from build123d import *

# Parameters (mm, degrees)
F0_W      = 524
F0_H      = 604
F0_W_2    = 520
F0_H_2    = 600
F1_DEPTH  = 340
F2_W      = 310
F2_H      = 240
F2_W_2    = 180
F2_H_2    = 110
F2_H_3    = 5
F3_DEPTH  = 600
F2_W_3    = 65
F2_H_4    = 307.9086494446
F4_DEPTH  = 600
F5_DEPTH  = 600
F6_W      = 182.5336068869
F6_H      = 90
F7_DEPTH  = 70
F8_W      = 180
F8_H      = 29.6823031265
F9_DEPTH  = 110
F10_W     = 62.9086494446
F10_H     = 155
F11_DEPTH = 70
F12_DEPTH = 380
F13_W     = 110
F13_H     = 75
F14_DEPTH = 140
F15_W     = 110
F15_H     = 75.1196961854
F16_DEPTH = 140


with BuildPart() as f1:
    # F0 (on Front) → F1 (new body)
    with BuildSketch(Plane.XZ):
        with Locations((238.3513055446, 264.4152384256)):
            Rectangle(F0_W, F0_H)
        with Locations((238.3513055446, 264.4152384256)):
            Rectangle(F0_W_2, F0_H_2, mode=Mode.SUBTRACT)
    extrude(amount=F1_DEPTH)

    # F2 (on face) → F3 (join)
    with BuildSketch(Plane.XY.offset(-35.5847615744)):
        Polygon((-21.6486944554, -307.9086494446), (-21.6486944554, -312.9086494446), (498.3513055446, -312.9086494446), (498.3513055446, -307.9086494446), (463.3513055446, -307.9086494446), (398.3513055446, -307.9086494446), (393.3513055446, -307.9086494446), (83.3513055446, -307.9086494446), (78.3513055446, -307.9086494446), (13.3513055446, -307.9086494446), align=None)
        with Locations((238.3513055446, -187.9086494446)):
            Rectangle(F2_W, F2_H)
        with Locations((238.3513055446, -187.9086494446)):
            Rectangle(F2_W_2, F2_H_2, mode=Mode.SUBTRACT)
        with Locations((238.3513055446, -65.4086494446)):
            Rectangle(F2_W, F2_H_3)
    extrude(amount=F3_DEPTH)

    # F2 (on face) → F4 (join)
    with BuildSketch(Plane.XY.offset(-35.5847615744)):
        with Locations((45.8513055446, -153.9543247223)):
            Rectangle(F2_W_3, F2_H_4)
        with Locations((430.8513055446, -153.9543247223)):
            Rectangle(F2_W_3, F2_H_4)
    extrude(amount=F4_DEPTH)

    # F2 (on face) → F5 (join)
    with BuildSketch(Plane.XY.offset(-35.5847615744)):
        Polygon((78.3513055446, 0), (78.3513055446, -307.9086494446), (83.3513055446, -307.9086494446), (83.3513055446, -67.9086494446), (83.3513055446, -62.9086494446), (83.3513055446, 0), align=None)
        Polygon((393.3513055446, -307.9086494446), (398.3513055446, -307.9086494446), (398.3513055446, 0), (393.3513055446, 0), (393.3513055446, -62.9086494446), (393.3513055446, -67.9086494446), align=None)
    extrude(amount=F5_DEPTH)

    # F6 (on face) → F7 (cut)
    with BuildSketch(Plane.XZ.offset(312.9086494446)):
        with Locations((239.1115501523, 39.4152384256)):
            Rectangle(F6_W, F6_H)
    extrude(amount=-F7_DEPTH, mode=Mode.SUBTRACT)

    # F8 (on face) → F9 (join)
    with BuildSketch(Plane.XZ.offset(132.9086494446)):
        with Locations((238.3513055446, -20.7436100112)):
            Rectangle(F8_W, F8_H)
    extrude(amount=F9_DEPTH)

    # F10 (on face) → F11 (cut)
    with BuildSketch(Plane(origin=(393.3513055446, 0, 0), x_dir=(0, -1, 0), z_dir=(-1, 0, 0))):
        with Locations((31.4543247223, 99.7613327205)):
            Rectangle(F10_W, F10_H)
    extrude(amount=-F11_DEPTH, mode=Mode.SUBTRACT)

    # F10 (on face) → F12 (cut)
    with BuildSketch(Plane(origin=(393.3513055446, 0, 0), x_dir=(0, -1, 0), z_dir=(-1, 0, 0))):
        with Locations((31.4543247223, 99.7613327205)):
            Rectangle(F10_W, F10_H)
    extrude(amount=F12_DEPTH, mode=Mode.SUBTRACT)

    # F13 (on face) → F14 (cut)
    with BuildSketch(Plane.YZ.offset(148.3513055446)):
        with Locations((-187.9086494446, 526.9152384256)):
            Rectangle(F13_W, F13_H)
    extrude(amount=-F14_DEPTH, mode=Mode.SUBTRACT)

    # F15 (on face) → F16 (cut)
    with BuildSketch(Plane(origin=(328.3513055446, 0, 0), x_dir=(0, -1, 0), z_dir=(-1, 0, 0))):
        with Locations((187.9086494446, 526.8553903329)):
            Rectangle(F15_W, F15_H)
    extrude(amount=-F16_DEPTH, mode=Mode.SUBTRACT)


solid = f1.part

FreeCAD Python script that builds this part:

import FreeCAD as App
import Part
import Sketcher


def add_polygon(sketch, points):
    """Adds a closed chain of lines whose ends are joined by coincident constraints."""
    first, n = sketch.GeometryCount, len(points)
    for a, b in zip(points, points[1:] + points[:1]):
        sketch.addGeometry(Part.LineSegment(App.Vector(*a, 0), App.Vector(*b, 0)), False)
    for i in range(n):
        sketch.addConstraint(Sketcher.Constraint("Coincident", first + i, 2, first + (i + 1) % n, 1))

doc = App.newDocument("Part")
body = doc.addObject("PartDesign::Body", "Body")

# Sketch on XZ plane
sketch1 = body.newObject("Sketcher::SketchObject", "Sketch")
sketch1.AttachmentSupport = (doc.getObject("XZ_Plane"), [""])
sketch1.MapMode = "FlatFace"
add_polygon(sketch1, [(-24, 566), (-24, -38), (500, -38), (500, 566)])  # lines 0-3
add_polygon(sketch1, [(498, -36), (-22, -36), (-22, 564), (498, 564)])  # lines 4-7
sketch1.addConstraint([
    Sketcher.Constraint("Vertical", 0),
    Sketcher.Constraint("Horizontal", 1),
    Sketcher.Constraint("Vertical", 2),
    Sketcher.Constraint("Horizontal", 3),
    Sketcher.Constraint("Horizontal", 4),
    Sketcher.Constraint("Vertical", 5),
    Sketcher.Constraint("Horizontal", 6),
    Sketcher.Constraint("Vertical", 7),
    Sketcher.Constraint("DistanceX", 1, 1, 1, 2, 524.0),
    Sketcher.Constraint("DistanceX", 4, 2, 4, 1, 520.0),
    Sketcher.Constraint("DistanceY", 0, 2, 0, 1, 604.0),
    Sketcher.Constraint("DistanceY", 5, 1, 5, 2, 600.0),
    Sketcher.Constraint("DistanceX", 0, 2, 4, 2, 2.0),
    Sketcher.Constraint("DistanceY", 0, 2, 4, 2, 2.0),
    Sketcher.Constraint("DistanceY", 0, 2, -1, 1, 37.584762),
    Sketcher.Constraint("DistanceX", 0, 2, -1, 1, 23.648694),
])
pad1 = body.newObject("PartDesign::Pad", "Pad")
pad1.Profile = sketch1
pad1.Length = 340

# Sketch on XY plane
sketch2 = body.newObject("Sketcher::SketchObject", "Sketch001")
sketch2.AttachmentSupport = (doc.getObject("XY_Plane"), [""])
sketch2.MapMode = "FlatFace"
sketch2.AttachmentOffset = App.Placement(App.Vector(0, 0, -35.584762), App.Rotation())
add_polygon(sketch2, [(-22, -308), (-22, -313), (498, -313), (498, -308), (393, -308), (393, -63), (83, -63), (83, -308)])  # lines 0-7
add_polygon(sketch2, [(328, -243), (148, -243), (148, -133), (328, -133)])  # lines 8-11
sketch2.addConstraint([
    Sketcher.Constraint("Vertical", 0),
    Sketcher.Constraint("Horizontal", 1),
    Sketcher.Constraint("Vertical", 2),
    Sketcher.Constraint("Horizontal", 3),
    Sketcher.Constraint("Vertical", 4),
    Sketcher.Constraint("Horizontal", 5),
    Sketcher.Constraint("Vertical", 6),
    Sketcher.Constraint("Horizontal", 7),
    Sketcher.Constraint("Horizontal", 8),
    Sketcher.Constraint("Vertical", 9),
    Sketcher.Constraint("Horizontal", 10),
    Sketcher.Constraint("Vertical", 11),
    Sketcher.Constraint("Horizontal", 3, 2, 6, 2),
    Sketcher.Constraint("Equal", 3, 7),
    Sketcher.Constraint("DistanceX", 1, 1, 1, 2, 520.0),
    Sketcher.Constraint("DistanceX", 3, 2, 3, 1, 105.0),
    Sketcher.Constraint("DistanceX", 8, 2, 8, 1, 180.0),
    Sketcher.Constraint("DistanceY", 0, 2, 0, 1, 5.0),
    Sketcher.Constraint("DistanceY", 4, 1, 4, 2, 245.0),
    Sketcher.Constraint("DistanceY", 9, 1, 9, 2, 110.0),
    Sketcher.Constraint("DistanceX", 6, 2, 8, 2, 65.0),
    Sketcher.Constraint("DistanceY", 6, 2, 8, 2, 65.0),
    Sketcher.Constraint("DistanceY", 0, 2, -1, 1, 312.908649),
    Sketcher.Constraint("DistanceX", 0, 2, -1, 1, 21.648694),
])
pad2 = body.newObject("PartDesign::Pad", "Pad001")
pad2.Profile = sketch2
pad2.Length = 600

# Sketch on XY plane
sketch3 = body.newObject("Sketcher::SketchObject", "Sketch002")
sketch3.AttachmentSupport = (doc.getObject("XY_Plane"), [""])
sketch3.MapMode = "FlatFace"
sketch3.AttachmentOffset = App.Placement(App.Vector(0, 0, -35.584762), App.Rotation())
add_polygon(sketch3, [(13, 0), (13, -308), (78, -308), (78, 0)])  # lines 0-3
add_polygon(sketch3, [(398, 0), (398, -308), (463, -308), (463, 0)])  # lines 4-7
sketch3.addConstraint([
    Sketcher.Constraint("Vertical", 0),
    Sketcher.Constraint("Horizontal", 1),
    Sketcher.Constraint("Vertical", 2),
    Sketcher.Constraint("Horizontal", 3),
    Sketcher.Constraint("Vertical", 4),
    Sketcher.Constraint("Horizontal", 5),
    Sketcher.Constraint("Vertical", 6),
    Sketcher.Constraint("Horizontal", 7),
    Sketcher.Constraint("PointOnObject", 2, 2, -1),
    Sketcher.Constraint("PointOnObject", 6, 2, -1),
    Sketcher.Constraint("Horizontal", 1, 2, 4, 2),
    Sketcher.Constraint("Equal", 3, 5),
    Sketcher.Constraint("DistanceX", 1, 1, 1, 2, 65.0),
    Sketcher.Constraint("DistanceX", 1, 2, 4, 2, 320.0),
    Sketcher.Constraint("DistanceY", 0, 2, 0, 1, 307.908649),
    Sketcher.Constraint("DistanceX", -1, 1, 0, 2, 13.351306),
])
pad3 = body.newObject("PartDesign::Pad", "Pad002")
pad3.Profile = sketch3
pad3.Length = 600

# Sketch on XY plane
sketch4 = body.newObject("Sketcher::SketchObject", "Sketch003")
sketch4.AttachmentSupport = (doc.getObject("XY_Plane"), [""])
sketch4.MapMode = "FlatFace"
sketch4.AttachmentOffset = App.Placement(App.Vector(0, 0, -35.584762), App.Rotation())
add_polygon(sketch4, [(78, 0), (78, -308), (83, -308), (83, 0)])  # lines 0-3
add_polygon(sketch4, [(393, -308), (398, -308), (398, 0), (393, 0)])  # lines 4-7
sketch4.addConstraint([
    Sketcher.Constraint("Vertical", 0),
    Sketcher.Constraint("Horizontal", 1),
    Sketcher.Constraint("Vertical", 2),
    Sketcher.Constraint("Horizontal", 3),
    Sketcher.Constraint("Horizontal", 4),
    Sketcher.Constraint("Vertical", 5),
    Sketcher.Constraint("Horizontal", 6),
    Sketcher.Constraint("Vertical", 7),
    Sketcher.Constraint("PointOnObject", 2, 2, -1),
    Sketcher.Constraint("PointOnObject", 5, 2, -1),
    Sketcher.Constraint("Horizontal", 1, 2, 4, 2),
    Sketcher.Constraint("Equal", 3, 4),
    Sketcher.Constraint("DistanceX", 1, 1, 1, 2, 5.0),
    Sketcher.Constraint("DistanceX", 1, 2, 4, 2, 315.0),
    Sketcher.Constraint("DistanceY", 0, 2, 0, 1, 307.908649),
    Sketcher.Constraint("DistanceX", -1, 1, 0, 2, 78.351306),
])
pad4 = body.newObject("PartDesign::Pad", "Pad003")
pad4.Profile = sketch4
pad4.Length = 600

# Sketch on XZ plane
sketch5 = body.newObject("Sketcher::SketchObject", "Sketch004")
sketch5.AttachmentSupport = (doc.getObject("XZ_Plane"), [""])
sketch5.MapMode = "FlatFace"
sketch5.AttachmentOffset = App.Placement(App.Vector(0, 0, 312.908649), App.Rotation())
add_polygon(sketch5, [(148, 84), (148, -6), (330, -6), (330, 84)])  # lines 0-3
sketch5.addConstraint([
    Sketcher.Constraint("Vertical", 0),
    Sketcher.Constraint("Horizontal", 1),
    Sketcher.Constraint("Vertical", 2),
    Sketcher.Constraint("Horizontal", 3),
    Sketcher.Constraint("DistanceY", 0, 2, 0, 1, 90.0),
    Sketcher.Constraint("DistanceX", 1, 1, 1, 2, 182.533607),
    Sketcher.Constraint("DistanceY", 0, 2, -1, 1, 5.584762),
    Sketcher.Constraint("DistanceX", -1, 1, 0, 2, 147.844747),
])
pocket1 = body.newObject("PartDesign::Pocket", "Pocket")
pocket1.Profile = sketch5
pocket1.Length = 70

# Sketch on XZ plane
sketch6 = body.newObject("Sketcher::SketchObject", "Sketch005")
sketch6.AttachmentSupport = (doc.getObject("XZ_Plane"), [""])
sketch6.MapMode = "FlatFace"
sketch6.AttachmentOffset = App.Placement(App.Vector(0, 0, 132.908649), App.Rotation())
add_polygon(sketch6, [(148, -6), (148, -36), (328, -36), (328, -6)])  # lines 0-3
sketch6.addConstraint([
    Sketcher.Constraint("Vertical", 0),
    Sketcher.Constraint("Horizontal", 1),
    Sketcher.Constraint("Vertical", 2),
    Sketcher.Constraint("Horizontal", 3),
    Sketcher.Constraint("DistanceX", 1, 1, 1, 2, 180.0),
    Sketcher.Constraint("DistanceY", 0, 2, 0, 1, 29.682303),
    Sketcher.Constraint("DistanceY", 0, 2, -1, 1, 35.584762),
    Sketcher.Constraint("DistanceX", -1, 1, 0, 2, 148.351306),
])
pad5 = body.newObject("PartDesign::Pad", "Pad004")
pad5.Profile = sketch6
pad5.Length = 110

# Sketch on YZ plane
sketch7 = body.newObject("Sketcher::SketchObject", "Sketch006")
sketch7.AttachmentSupport = (doc.getObject("YZ_Plane"), [""])
sketch7.MapMode = "FlatFace"
sketch7.AttachmentOffset = App.Placement(App.Vector(0, 0, 393.351306), App.Rotation())
add_polygon(sketch7, [(0, 177), (0, 22), (-63, 22), (-63, 177)])  # lines 0-3
sketch7.addConstraint([
    Sketcher.Constraint("Vertical", 0),
    Sketcher.Constraint("Horizontal", 1),
    Sketcher.Constraint("Vertical", 2),
    Sketcher.Constraint("Horizontal", 3),
    Sketcher.Constraint("PointOnObject", 0, 2, -2),
    Sketcher.Constraint("DistanceY", 0, 2, 0, 1, 155.0),
    Sketcher.Constraint("DistanceX", 1, 2, 1, 1, 62.908649),
    Sketcher.Constraint("DistanceY", -1, 1, 0, 2, 22.261333),
])
pocket2 = body.newObject("PartDesign::Pocket", "Pocket001")
pocket2.Profile = sketch7
pocket2.Length = 70
pocket2.Reversed = True

# Sketch on YZ plane
sketch8 = body.newObject("Sketcher::SketchObject", "Sketch007")
sketch8.AttachmentSupport = (doc.getObject("YZ_Plane"), [""])
sketch8.MapMode = "FlatFace"
sketch8.AttachmentOffset = App.Placement(App.Vector(0, 0, 393.351306), App.Rotation())
add_polygon(sketch8, [(0, 177), (0, 22), (-63, 22), (-63, 177)])  # lines 0-3
sketch8.addConstraint([
    Sketcher.Constraint("Vertical", 0),
    Sketcher.Constraint("Horizontal", 1),
    Sketcher.Constraint("Vertical", 2),
    Sketcher.Constraint("Horizontal", 3),
    Sketcher.Constraint("PointOnObject", 0, 2, -2),
    Sketcher.Constraint("DistanceY", 0, 2, 0, 1, 155.0),
    Sketcher.Constraint("DistanceX", 1, 2, 1, 1, 62.908649),
    Sketcher.Constraint("DistanceY", -1, 1, 0, 2, 22.261333),
])
pocket3 = body.newObject("PartDesign::Pocket", "Pocket002")
pocket3.Profile = sketch8
pocket3.Length = 380

# Sketch on YZ plane
sketch9 = body.newObject("Sketcher::SketchObject", "Sketch008")
sketch9.AttachmentSupport = (doc.getObject("YZ_Plane"), [""])
sketch9.MapMode = "FlatFace"
sketch9.AttachmentOffset = App.Placement(App.Vector(0, 0, 148.351306), App.Rotation())
add_polygon(sketch9, [(-243, 564), (-243, 489), (-133, 489), (-133, 564)])  # lines 0-3
sketch9.addConstraint([
    Sketcher.Constraint("Vertical", 0),
    Sketcher.Constraint("Horizontal", 1),
    Sketcher.Constraint("Vertical", 2),
    Sketcher.Constraint("Horizontal", 3),
    Sketcher.Constraint("DistanceX", 1, 1, 1, 2, 110.0),
    Sketcher.Constraint("DistanceY", 0, 2, 0, 1, 75.0),
    Sketcher.Constraint("DistanceX", 0, 2, -1, 1, 242.908649),
    Sketcher.Constraint("DistanceY", -1, 1, 0, 2, 489.415238),
])
pocket4 = body.newObject("PartDesign::Pocket", "Pocket003")
pocket4.Profile = sketch9
pocket4.Length = 140

# Sketch on YZ plane
sketch10 = body.newObject("Sketcher::SketchObject", "Sketch009")
sketch10.AttachmentSupport = (doc.getObject("YZ_Plane"), [""])
sketch10.MapMode = "FlatFace"
sketch10.AttachmentOffset = App.Placement(App.Vector(0, 0, 328.351306), App.Rotation())
add_polygon(sketch10, [(-133, 564), (-133, 489), (-243, 489), (-243, 564)])  # lines 0-3
sketch10.addConstraint([
    Sketcher.Constraint("Vertical", 0),
    Sketcher.Constraint("Horizontal", 1),
    Sketcher.Constraint("Vertical", 2),
    Sketcher.Constraint("Horizontal", 3),
    Sketcher.Constraint("DistanceX", 1, 2, 1, 1, 110.0),
    Sketcher.Constraint("DistanceY", 0, 2, 0, 1, 75.119696),
    Sketcher.Constraint("DistanceX", 0, 2, -1, 1, 132.908649),
    Sketcher.Constraint("DistanceY", -1, 1, 2, 2, 564.415238),
])
pocket5 = body.newObject("PartDesign::Pocket", "Pocket004")
pocket5.Profile = sketch10
pocket5.Length = 140
pocket5.Reversed = True

doc.recompute()
